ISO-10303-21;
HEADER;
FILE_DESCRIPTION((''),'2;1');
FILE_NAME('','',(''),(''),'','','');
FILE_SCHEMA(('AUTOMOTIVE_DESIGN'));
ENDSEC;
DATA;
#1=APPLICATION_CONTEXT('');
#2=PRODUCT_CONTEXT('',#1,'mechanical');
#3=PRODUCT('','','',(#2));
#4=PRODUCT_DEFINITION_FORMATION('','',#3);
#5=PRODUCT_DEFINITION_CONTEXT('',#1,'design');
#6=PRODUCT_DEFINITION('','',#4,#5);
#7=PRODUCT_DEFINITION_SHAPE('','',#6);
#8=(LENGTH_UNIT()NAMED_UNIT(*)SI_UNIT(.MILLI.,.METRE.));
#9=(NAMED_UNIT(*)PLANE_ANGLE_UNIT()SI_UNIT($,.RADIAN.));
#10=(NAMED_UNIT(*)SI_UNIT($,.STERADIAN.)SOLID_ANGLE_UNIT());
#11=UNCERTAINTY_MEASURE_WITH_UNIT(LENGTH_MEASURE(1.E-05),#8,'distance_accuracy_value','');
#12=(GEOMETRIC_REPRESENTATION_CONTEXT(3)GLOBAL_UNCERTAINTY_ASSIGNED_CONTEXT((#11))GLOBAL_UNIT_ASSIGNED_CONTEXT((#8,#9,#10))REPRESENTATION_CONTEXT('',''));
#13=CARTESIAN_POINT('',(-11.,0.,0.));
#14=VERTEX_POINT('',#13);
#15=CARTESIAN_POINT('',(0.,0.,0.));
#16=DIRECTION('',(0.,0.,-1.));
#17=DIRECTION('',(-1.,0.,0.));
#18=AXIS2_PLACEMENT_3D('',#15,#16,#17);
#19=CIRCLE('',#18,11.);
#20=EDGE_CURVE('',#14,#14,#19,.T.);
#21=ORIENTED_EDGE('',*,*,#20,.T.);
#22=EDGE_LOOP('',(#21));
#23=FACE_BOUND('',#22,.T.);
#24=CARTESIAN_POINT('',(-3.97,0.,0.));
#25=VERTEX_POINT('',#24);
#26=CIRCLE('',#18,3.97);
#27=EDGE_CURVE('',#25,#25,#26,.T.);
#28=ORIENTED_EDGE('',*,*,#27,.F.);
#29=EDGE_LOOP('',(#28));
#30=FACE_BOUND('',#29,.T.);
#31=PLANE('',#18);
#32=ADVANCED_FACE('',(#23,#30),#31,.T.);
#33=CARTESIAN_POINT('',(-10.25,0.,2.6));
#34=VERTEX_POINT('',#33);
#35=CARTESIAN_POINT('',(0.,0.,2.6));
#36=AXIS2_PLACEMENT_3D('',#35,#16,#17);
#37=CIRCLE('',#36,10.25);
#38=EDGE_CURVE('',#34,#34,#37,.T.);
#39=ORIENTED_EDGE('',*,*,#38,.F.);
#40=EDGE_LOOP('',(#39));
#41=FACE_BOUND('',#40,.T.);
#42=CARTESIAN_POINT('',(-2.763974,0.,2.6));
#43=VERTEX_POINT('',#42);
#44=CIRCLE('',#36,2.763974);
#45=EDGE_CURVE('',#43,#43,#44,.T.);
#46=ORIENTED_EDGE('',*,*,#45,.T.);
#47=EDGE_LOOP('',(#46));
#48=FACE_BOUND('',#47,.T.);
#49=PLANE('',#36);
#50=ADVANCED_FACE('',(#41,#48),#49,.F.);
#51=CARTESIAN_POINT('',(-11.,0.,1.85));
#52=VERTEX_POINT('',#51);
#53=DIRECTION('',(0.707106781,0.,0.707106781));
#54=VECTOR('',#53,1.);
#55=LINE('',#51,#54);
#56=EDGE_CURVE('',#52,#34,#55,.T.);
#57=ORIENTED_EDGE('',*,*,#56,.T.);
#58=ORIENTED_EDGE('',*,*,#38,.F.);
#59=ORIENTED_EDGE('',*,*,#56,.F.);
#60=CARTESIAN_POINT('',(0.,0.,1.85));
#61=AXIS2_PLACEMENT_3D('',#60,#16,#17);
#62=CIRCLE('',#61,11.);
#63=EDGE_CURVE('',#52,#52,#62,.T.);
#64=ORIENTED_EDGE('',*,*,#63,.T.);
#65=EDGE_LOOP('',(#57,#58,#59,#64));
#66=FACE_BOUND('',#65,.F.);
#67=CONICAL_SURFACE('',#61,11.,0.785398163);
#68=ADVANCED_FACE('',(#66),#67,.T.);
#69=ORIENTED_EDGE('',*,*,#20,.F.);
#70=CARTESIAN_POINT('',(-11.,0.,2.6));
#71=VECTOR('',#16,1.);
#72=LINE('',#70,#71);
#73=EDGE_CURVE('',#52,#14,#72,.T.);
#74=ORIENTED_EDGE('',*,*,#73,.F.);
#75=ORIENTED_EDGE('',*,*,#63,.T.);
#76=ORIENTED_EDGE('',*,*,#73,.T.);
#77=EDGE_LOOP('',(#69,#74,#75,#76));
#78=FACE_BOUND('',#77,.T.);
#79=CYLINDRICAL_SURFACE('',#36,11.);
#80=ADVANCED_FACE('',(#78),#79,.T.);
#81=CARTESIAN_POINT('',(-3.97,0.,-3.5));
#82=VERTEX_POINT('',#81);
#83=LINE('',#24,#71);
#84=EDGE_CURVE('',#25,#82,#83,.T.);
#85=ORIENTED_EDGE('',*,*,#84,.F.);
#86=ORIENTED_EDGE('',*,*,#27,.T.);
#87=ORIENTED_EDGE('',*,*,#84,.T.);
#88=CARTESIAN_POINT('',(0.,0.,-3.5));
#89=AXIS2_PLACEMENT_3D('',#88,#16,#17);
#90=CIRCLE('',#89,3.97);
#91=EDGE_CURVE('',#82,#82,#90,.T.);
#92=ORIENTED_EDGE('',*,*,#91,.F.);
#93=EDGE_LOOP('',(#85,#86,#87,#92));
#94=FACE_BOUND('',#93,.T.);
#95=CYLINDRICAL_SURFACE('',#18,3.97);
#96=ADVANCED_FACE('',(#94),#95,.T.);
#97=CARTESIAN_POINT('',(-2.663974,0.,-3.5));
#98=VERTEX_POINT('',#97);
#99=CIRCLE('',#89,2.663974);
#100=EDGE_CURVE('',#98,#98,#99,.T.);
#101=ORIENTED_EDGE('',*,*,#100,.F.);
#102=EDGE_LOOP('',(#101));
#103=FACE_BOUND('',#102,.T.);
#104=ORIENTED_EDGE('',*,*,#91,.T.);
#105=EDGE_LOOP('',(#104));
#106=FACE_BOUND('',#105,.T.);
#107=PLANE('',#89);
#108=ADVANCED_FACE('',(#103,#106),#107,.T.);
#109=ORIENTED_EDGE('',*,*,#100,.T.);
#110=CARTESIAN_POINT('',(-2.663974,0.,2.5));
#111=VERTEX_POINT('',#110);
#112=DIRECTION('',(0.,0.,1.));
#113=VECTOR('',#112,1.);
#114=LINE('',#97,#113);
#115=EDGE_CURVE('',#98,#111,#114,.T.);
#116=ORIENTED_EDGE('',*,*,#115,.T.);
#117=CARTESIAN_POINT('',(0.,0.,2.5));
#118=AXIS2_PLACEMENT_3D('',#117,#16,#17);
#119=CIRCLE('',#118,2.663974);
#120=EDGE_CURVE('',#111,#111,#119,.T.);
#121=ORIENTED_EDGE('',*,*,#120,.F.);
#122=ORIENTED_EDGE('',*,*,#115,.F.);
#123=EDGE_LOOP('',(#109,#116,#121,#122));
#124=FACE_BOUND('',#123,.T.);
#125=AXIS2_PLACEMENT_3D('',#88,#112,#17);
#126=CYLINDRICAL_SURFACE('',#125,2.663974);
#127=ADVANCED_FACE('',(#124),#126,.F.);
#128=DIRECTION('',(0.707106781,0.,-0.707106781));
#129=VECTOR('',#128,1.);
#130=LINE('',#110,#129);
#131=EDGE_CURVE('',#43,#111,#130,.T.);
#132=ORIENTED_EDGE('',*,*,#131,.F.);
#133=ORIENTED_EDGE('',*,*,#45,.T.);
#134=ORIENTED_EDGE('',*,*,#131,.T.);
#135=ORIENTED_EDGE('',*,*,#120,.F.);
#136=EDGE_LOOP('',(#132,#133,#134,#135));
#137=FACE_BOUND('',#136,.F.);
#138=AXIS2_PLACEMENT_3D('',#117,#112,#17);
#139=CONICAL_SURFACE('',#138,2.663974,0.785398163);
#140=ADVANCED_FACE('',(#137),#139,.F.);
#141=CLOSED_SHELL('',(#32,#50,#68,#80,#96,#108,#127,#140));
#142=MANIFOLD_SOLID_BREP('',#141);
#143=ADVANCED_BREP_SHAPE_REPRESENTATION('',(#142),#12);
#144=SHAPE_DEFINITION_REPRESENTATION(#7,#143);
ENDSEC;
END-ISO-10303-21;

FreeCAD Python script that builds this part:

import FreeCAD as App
import Part
import Sketcher
from FreeCAD import Vector


def edges_at(feature, points):
    """Names of the edges that pass closest to the given points."""
    edges = feature.Shape.Edges
    near = lambda p: min(range(len(edges)), key=lambda i: edges[i].distToShape(Part.Vertex(*p))[0])
    return sorted({f"Edge{near(p) + 1}" for p in points})

doc = App.newDocument("Part")
body = doc.addObject("PartDesign::Body", "Body")

sketch1 = doc.addObject("Sketcher::SketchObject", "Sketch")
body.addObject(sketch1)
sketch1.AttachmentSupport = (doc.XZ_Plane, [""])
sketch1.MapMode = "FlatFace"
sketch1.addGeometry(Part.LineSegment(Vector(-11, 2.6, 0), Vector(-11, 0, 0)), False)
sketch1.addGeometry(Part.LineSegment(Vector(-11, 0, 0), Vector(-4, 0, 0)), False)
sketch1.addGeometry(Part.LineSegment(Vector(-4, 0, 0), Vector(-4, -3.5, 0)), False)
sketch1.addGeometry(Part.LineSegment(Vector(-4, -3.5, 0), Vector(-2.7, -3.5, 0)), False)
sketch1.addGeometry(Part.LineSegment(Vector(-2.7, -3.5, 0), Vector(-2.7, 2.6, 0)), False)
sketch1.addGeometry(Part.LineSegment(Vector(-2.7, 2.6, 0), Vector(-11, 2.6, 0)), False)
sketch1.addConstraint(Sketcher.Constraint("Coincident", 0, 2, 1, 1))
sketch1.addConstraint(Sketcher.Constraint("Coincident", 1, 2, 2, 1))
sketch1.addConstraint(Sketcher.Constraint("Coincident", 2, 2, 3, 1))
sketch1.addConstraint(Sketcher.Constraint("Coincident", 3, 2, 4, 1))
sketch1.addConstraint(Sketcher.Constraint("Coincident", 4, 2, 5, 1))
sketch1.addConstraint(Sketcher.Constraint("Coincident", 5, 2, 0, 1))
sketch1.addConstraint(Sketcher.Constraint("Vertical", 0))
sketch1.addConstraint(Sketcher.Constraint("Horizontal", 1))
sketch1.addConstraint(Sketcher.Constraint("Vertical", 2))
sketch1.addConstraint(Sketcher.Constraint("Horizontal", 3))
sketch1.addConstraint(Sketcher.Constraint("Vertical", 4))
sketch1.addConstraint(Sketcher.Constraint("Horizontal", 5))
sketch1.addConstraint(Sketcher.Constraint("PointOnObject", 0, 2, -1))
sketch1.addConstraint(Sketcher.Constraint("DistanceY", 0, 2, 0, 1, 2.6))
sketch1.addConstraint(Sketcher.Constraint("DistanceY", 2, 2, 2, 1, 3.5))
sketch1.addConstraint(Sketcher.Constraint("DistanceX", 0, 2, -1, 1, 11.0))
sketch1.addConstraint(Sketcher.Constraint("DistanceX", 1, 1, 1, 2, 7.03))
sketch1.addConstraint(Sketcher.Constraint("DistanceX", 3, 1, 3, 2, 1.306026))
revolution = doc.addObject("PartDesign::Revolution", "Revolution")
body.addObject(revolution)
revolution.Profile = sketch1
revolution.ReferenceAxis = (sketch1, ["V_Axis"])
revolution.Angle = 360
doc.recompute()

chamfer = doc.addObject("PartDesign::Chamfer", "Chamfer")
body.addObject(chamfer)
chamfer.Base = (revolution, edges_at(revolution, [(11, 0, 2.6)]))
chamfer.Size = 0.75
doc.recompute()

chamfer2 = doc.addObject("PartDesign::Chamfer", "Chamfer001")
body.addObject(chamfer2)
chamfer2.Base = (chamfer, edges_at(chamfer, [(2.664, 0, 2.6)]))
chamfer2.Size = 0.1

doc.recompute()
